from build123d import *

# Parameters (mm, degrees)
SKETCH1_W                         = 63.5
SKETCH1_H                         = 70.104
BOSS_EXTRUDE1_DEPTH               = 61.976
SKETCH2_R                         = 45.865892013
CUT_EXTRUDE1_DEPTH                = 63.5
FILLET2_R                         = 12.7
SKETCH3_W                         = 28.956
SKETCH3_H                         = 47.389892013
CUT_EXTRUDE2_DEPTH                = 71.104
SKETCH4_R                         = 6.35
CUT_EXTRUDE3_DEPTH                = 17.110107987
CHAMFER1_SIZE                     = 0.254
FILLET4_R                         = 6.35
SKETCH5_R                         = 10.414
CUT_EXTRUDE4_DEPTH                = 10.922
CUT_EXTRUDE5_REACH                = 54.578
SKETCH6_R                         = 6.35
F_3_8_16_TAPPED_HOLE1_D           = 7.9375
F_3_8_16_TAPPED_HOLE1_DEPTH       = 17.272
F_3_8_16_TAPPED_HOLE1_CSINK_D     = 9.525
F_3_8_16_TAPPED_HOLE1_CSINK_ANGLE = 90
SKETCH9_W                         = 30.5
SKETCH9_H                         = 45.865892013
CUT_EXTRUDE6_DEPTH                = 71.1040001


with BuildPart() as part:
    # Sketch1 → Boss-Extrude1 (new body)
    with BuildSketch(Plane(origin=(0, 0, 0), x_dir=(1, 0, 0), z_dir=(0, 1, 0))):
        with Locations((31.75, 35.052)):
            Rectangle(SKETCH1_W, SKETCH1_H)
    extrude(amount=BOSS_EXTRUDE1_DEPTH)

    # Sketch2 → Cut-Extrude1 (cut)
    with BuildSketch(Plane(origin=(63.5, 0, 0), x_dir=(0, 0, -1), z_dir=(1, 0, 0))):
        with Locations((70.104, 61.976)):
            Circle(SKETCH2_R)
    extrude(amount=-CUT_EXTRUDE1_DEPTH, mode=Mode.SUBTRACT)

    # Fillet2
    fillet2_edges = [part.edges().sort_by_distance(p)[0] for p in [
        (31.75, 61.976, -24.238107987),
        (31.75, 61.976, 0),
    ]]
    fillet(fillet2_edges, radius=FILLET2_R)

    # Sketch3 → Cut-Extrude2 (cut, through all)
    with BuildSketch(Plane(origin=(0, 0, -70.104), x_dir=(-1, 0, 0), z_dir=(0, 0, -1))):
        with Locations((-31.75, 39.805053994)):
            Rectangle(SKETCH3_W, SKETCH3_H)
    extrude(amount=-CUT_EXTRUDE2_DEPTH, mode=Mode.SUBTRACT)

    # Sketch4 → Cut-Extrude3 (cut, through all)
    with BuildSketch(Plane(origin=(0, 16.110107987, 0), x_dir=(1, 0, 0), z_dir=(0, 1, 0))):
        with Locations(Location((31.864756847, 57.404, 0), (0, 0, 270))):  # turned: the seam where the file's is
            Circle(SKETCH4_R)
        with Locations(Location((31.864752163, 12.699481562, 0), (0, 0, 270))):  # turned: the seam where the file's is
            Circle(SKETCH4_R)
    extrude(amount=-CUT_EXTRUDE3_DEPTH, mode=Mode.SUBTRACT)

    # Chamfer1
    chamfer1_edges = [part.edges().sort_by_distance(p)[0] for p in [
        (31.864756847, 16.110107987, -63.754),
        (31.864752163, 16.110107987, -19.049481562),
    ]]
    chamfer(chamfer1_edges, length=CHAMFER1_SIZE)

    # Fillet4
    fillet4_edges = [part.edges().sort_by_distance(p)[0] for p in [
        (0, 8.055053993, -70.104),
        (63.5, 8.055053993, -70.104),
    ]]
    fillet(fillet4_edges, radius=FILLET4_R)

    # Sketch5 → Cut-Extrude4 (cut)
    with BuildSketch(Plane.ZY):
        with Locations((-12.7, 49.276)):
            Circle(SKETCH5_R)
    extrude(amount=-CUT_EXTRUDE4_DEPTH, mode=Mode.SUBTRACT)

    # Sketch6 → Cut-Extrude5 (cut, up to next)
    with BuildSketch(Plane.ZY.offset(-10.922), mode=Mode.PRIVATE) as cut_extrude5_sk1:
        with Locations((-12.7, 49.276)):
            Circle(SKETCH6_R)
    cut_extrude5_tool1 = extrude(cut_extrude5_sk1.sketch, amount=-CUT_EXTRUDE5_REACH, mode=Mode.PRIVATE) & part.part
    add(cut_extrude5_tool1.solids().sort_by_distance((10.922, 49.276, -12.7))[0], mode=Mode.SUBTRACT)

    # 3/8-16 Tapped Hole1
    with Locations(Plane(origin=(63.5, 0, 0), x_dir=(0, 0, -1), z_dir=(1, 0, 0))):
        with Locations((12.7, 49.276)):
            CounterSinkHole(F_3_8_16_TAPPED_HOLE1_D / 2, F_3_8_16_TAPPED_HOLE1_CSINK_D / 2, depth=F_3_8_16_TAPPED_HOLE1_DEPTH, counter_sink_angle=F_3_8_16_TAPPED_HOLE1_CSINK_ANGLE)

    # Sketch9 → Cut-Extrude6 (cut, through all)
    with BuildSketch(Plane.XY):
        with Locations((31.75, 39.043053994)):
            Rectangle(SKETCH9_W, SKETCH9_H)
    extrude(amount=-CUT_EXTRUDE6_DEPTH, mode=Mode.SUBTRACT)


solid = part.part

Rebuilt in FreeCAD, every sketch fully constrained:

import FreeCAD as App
import Part
import Sketcher
from FreeCAD import Vector
Q = App.Units.Quantity


def edges_at(feature, points):
    """Names of the edges that pass closest to the given points."""
    edges = feature.Shape.Edges
    near = lambda p: min(range(len(edges)), key=lambda i: edges[i].distToShape(Part.Vertex(*p))[0])
    return sorted({f"Edge{near(p) + 1}" for p in points})

doc = App.newDocument("Part")
body = doc.addObject("PartDesign::Body", "Body")

# Sketch on XZ plane
sketch1 = body.newObject("Sketcher::SketchObject", "Sketch")
sketch1.AttachmentSupport = (doc.getObject("XZ_Plane"), [""])
sketch1.MapMode = "FlatFace"
sketch1.addGeometry([
    Part.LineSegment(Vector(0, -70, 0), Vector(0, 0, 0)),
    Part.LineSegment(Vector(0, 0, 0), Vector(64, 0, 0)),
    Part.LineSegment(Vector(64, 0, 0), Vector(64, -70, 0)),
    Part.LineSegment(Vector(64, -70, 0), Vector(0, -70, 0)),
], False)
sketch1.addConstraint([
    Sketcher.Constraint("Coincident", 0, 2, 1, 1),
    Sketcher.Constraint("Coincident", 1, 2, 2, 1),
    Sketcher.Constraint("Coincident", 2, 2, 3, 1),
    Sketcher.Constraint("Coincident", 3, 2, 0, 1),
    Sketcher.Constraint("Vertical", 0),
    Sketcher.Constraint("Horizontal", 1),
    Sketcher.Constraint("Vertical", 2),
    Sketcher.Constraint("Horizontal", 3),
    Sketcher.Constraint("Coincident", 0, 2, -1, 1),
    Sketcher.Constraint("DistanceX", 1, 1, 1, 2, Q("2.5 in")),
    Sketcher.Constraint("DistanceY", 0, 1, 0, 2, Q("2.76 in")),
])
pad1 = body.newObject("PartDesign::Pad", "Pad")
pad1.Profile = sketch1
pad1.Length = Q("2.44 in")
pad1.Reversed = True

# Sketch on YZ plane
sketch2 = body.newObject("Sketcher::SketchObject", "Sketch001")
sketch2.AttachmentSupport = (doc.getObject("YZ_Plane"), [""])
sketch2.MapMode = "FlatFace"
sketch2.AttachmentOffset = App.Placement(Vector(0, 0, 2.5 * 25.4), App.Rotation())
sketch2.addGeometry(Part.Circle(Vector(62, -70, 0), Vector(0, 0, 1), 46), False)
sketch2.addConstraint([
    Sketcher.Constraint("DistanceX", -1, 1, 0, 3, Q("2.44 in")),
    Sketcher.Constraint("DistanceY", 0, 3, -1, 1, Q("2.76 in")),
    Sketcher.Constraint("Diameter", 0, 91.731784),
])
pocket1 = body.newObject("PartDesign::Pocket", "Pocket")
pocket1.Profile = sketch2
pocket1.Length = Q("2.5 in")
doc.recompute()

fillet = body.newObject("PartDesign::Fillet", "Fillet")
fillet.Base = (pocket1, edges_at(pocket1, [(31.75, 61.976, -24.238), (31.75, 61.976, 0)]))
fillet.Radius = Q("0.5 in")

# Sketch on XY plane
sketch3 = body.newObject("Sketcher::SketchObject", "Sketch002")
sketch3.AttachmentSupport = (doc.getObject("XY_Plane"), [""])
sketch3.MapMode = "FlatFace"
sketch3.AttachmentOffset = App.Placement(Vector(0, 0, -2.76 * 25.4), App.Rotation())
sketch3.addGeometry([
    Part.LineSegment(Vector(46, 64, 0), Vector(46, 16, 0)),
    Part.LineSegment(Vector(46, 16, 0), Vector(17, 16, 0)),
    Part.LineSegment(Vector(17, 16, 0), Vector(17, 64, 0)),
    Part.LineSegment(Vector(17, 64, 0), Vector(46, 64, 0)),
], False)
sketch3.addConstraint([
    Sketcher.Constraint("Coincident", 0, 2, 1, 1),
    Sketcher.Constraint("Coincident", 1, 2, 2, 1),
    Sketcher.Constraint("Coincident", 2, 2, 3, 1),
    Sketcher.Constraint("Coincident", 3, 2, 0, 1),
    Sketcher.Constraint("Vertical", 0),
    Sketcher.Constraint("Horizontal", 1),
    Sketcher.Constraint("Vertical", 2),
    Sketcher.Constraint("Horizontal", 3),
    Sketcher.Constraint("DistanceX", 1, 2, 1, 1, Q("1.14 in")),
    Sketcher.Constraint("DistanceY", -1, 1, 2, 2, Q("2.5 in")),
    Sketcher.Constraint("DistanceX", -1, 1, 0, 2, Q("1.82 in")),
    Sketcher.Constraint("DistanceY", 0, 2, 0, 1, 47.389892),
])
pocket2 = body.newObject("PartDesign::Pocket", "Pocket001")
pocket2.Profile = sketch3
pocket2.Type = "ThroughAll"
pocket2.Reversed = True

# Sketch on XZ plane
sketch4 = body.newObject("Sketcher::SketchObject", "Sketch003")
sketch4.AttachmentSupport = (doc.getObject("XZ_Plane"), [""])
sketch4.MapMode = "FlatFace"
sketch4.AttachmentOffset = App.Placement(Vector(0, 0, -16.110108), App.Rotation())
sketch4.addGeometry([
    Part.Circle(Vector(32, -57, 0), Vector(0, 0, 1), 6),
    Part.Circle(Vector(32, -13, 0), Vector(0, 0, 1), 6),
], False)
sketch4.addConstraint([
    Sketcher.Constraint("Equal", 0, 1),
    Sketcher.Constraint("Diameter", 0, Q("0.5 in")),
    Sketcher.Constraint("DistanceY", 0, 3, -1, 1, Q("2.26 in")),
    Sketcher.Constraint("DistanceY", 1, 3, -1, 1, 12.699482),
    Sketcher.Constraint("DistanceX", -1, 1, 0, 3, 31.864757),
    Sketcher.Constraint("DistanceX", -1, 1, 1, 3, 31.864752),
])
pocket3 = body.newObject("PartDesign::Pocket", "Pocket002")
pocket3.Profile = sketch4
pocket3.Type = "ThroughAll"
pocket3.Reversed = True
doc.recompute()

chamfer = body.newObject("PartDesign::Chamfer", "Chamfer")
chamfer.Base = (pocket3, edges_at(pocket3, [(31.865, 16.11, -63.754), (31.865, 16.11, -19.049)]))
chamfer.Size = Q("0.01 in")
doc.recompute()

fillet2 = body.newObject("PartDesign::Fillet", "Fillet001")
fillet2.Base = (chamfer, edges_at(chamfer, [(0, 8.055, -70.104), (63.5, 8.055, -70.104)]))
fillet2.Radius = Q("0.25 in")

# Sketch on YZ plane
sketch5 = body.newObject("Sketcher::SketchObject", "Sketch004")
sketch5.AttachmentSupport = (doc.getObject("YZ_Plane"), [""])
sketch5.MapMode = "FlatFace"
sketch5.addGeometry(Part.Circle(Vector(49, -13, 0), Vector(0, 0, 1), 10), False)
sketch5.addConstraint([
    Sketcher.Constraint("Diameter", 0, Q("0.82 in")),
    Sketcher.Constraint("DistanceY", 0, 3, -1, 1, Q("0.5 in")),
    Sketcher.Constraint("DistanceX", -1, 1, 0, 3, Q("1.94 in")),
])
pocket4 = body.newObject("PartDesign::Pocket", "Pocket003")
pocket4.Profile = sketch5
pocket4.Length = Q("0.43 in")
pocket4.Reversed = True

# Sketch on YZ plane
sketch6 = body.newObject("Sketcher::SketchObject", "Sketch005")
sketch6.AttachmentSupport = (doc.getObject("YZ_Plane"), [""])
sketch6.MapMode = "FlatFace"
sketch6.AttachmentOffset = App.Placement(Vector(0, 0, 0.43 * 25.4), App.Rotation())
sketch6.addGeometry(Part.Circle(Vector(49, -13, 0), Vector(0, 0, 1), 6), False)
sketch6.addConstraint([
    Sketcher.Constraint("Diameter", 0, Q("0.5 in")),
    Sketcher.Constraint("DistanceY", 0, 3, -1, 1, Q("0.5 in")),
    Sketcher.Constraint("DistanceX", -1, 1, 0, 3, Q("1.94 in")),
])
pocket5 = body.newObject("PartDesign::Pocket", "Pocket004")
pocket5.Profile = sketch6
pocket5.Type = "UpToFirst"
pocket5.Reversed = True

# Sketch on YZ plane
sketch7 = body.newObject("Sketcher::SketchObject", "Sketch006")
sketch7.AttachmentSupport = (doc.getObject("YZ_Plane"), [""])
sketch7.MapMode = "FlatFace"
sketch7.AttachmentOffset = App.Placement(Vector(0, 0, 2.5 * 25.4), App.Rotation())
sketch7.addGeometry(Part.Circle(Vector(49.3, -12.7, 0), Vector(0, 0, 1), 4), False)
sketch7.addConstraint([
    Sketcher.Constraint("Diameter", 0, Q("0.3125 in")),
    Sketcher.Constraint("DistanceY", 0, 3, -1, 1, Q("0.5 in")),
    Sketcher.Constraint("DistanceX", -1, 1, 0, 3, Q("1.94 in")),
])
doc.recompute()
hole = body.newObject("PartDesign::Hole", "Hole")
hole.Profile = sketch7
hole.ThreadType = "None"
hole.Diameter = Q("0.3125 in")
hole.DepthType = "Dimension"
hole.Depth = Q("0.68 in")
hole.DrillPoint = "Flat"
hole.HoleCutType = "Countersink"
hole.HoleCutDiameter = Q("0.375 in")
hole.HoleCutCountersinkAngle = 90

# Sketch on XY plane
sketch8 = body.newObject("Sketcher::SketchObject", "Sketch007")
sketch8.AttachmentSupport = (doc.getObject("XY_Plane"), [""])
sketch8.MapMode = "FlatFace"
sketch8.addGeometry([
    Part.LineSegment(Vector(16, 62, 0), Vector(16, 16, 0)),
    Part.LineSegment(Vector(16, 16, 0), Vector(47, 16, 0)),
    Part.LineSegment(Vector(47, 16, 0), Vector(47, 62, 0)),
    Part.LineSegment(Vector(47, 62, 0), Vector(16, 62, 0)),
], False)
sketch8.addConstraint([
    Sketcher.Constraint("Coincident", 0, 2, 1, 1),
    Sketcher.Constraint("Coincident", 1, 2, 2, 1),
    Sketcher.Constraint("Coincident", 2, 2, 3, 1),
    Sketcher.Constraint("Coincident", 3, 2, 0, 1),
    Sketcher.Constraint("Vertical", 0),
    Sketcher.Constraint("Horizontal", 1),
    Sketcher.Constraint("Vertical", 2),
    Sketcher.Constraint("Horizontal", 3),
    Sketcher.Constraint("DistanceY", -1, 1, 2, 2, Q("2.44 in")),
    Sketcher.Constraint("DistanceX", 1, 1, 1, 2, 30.5),
    Sketcher.Constraint("DistanceX", -1, 1, 0, 2, 16.5),
    Sketcher.Constraint("DistanceY", 0, 2, 0, 1, 45.865892),
])
pocket6 = body.newObject("PartDesign::Pocket", "Pocket005")
pocket6.Profile = sketch8
pocket6.Type = "ThroughAll"

doc.recompute()
